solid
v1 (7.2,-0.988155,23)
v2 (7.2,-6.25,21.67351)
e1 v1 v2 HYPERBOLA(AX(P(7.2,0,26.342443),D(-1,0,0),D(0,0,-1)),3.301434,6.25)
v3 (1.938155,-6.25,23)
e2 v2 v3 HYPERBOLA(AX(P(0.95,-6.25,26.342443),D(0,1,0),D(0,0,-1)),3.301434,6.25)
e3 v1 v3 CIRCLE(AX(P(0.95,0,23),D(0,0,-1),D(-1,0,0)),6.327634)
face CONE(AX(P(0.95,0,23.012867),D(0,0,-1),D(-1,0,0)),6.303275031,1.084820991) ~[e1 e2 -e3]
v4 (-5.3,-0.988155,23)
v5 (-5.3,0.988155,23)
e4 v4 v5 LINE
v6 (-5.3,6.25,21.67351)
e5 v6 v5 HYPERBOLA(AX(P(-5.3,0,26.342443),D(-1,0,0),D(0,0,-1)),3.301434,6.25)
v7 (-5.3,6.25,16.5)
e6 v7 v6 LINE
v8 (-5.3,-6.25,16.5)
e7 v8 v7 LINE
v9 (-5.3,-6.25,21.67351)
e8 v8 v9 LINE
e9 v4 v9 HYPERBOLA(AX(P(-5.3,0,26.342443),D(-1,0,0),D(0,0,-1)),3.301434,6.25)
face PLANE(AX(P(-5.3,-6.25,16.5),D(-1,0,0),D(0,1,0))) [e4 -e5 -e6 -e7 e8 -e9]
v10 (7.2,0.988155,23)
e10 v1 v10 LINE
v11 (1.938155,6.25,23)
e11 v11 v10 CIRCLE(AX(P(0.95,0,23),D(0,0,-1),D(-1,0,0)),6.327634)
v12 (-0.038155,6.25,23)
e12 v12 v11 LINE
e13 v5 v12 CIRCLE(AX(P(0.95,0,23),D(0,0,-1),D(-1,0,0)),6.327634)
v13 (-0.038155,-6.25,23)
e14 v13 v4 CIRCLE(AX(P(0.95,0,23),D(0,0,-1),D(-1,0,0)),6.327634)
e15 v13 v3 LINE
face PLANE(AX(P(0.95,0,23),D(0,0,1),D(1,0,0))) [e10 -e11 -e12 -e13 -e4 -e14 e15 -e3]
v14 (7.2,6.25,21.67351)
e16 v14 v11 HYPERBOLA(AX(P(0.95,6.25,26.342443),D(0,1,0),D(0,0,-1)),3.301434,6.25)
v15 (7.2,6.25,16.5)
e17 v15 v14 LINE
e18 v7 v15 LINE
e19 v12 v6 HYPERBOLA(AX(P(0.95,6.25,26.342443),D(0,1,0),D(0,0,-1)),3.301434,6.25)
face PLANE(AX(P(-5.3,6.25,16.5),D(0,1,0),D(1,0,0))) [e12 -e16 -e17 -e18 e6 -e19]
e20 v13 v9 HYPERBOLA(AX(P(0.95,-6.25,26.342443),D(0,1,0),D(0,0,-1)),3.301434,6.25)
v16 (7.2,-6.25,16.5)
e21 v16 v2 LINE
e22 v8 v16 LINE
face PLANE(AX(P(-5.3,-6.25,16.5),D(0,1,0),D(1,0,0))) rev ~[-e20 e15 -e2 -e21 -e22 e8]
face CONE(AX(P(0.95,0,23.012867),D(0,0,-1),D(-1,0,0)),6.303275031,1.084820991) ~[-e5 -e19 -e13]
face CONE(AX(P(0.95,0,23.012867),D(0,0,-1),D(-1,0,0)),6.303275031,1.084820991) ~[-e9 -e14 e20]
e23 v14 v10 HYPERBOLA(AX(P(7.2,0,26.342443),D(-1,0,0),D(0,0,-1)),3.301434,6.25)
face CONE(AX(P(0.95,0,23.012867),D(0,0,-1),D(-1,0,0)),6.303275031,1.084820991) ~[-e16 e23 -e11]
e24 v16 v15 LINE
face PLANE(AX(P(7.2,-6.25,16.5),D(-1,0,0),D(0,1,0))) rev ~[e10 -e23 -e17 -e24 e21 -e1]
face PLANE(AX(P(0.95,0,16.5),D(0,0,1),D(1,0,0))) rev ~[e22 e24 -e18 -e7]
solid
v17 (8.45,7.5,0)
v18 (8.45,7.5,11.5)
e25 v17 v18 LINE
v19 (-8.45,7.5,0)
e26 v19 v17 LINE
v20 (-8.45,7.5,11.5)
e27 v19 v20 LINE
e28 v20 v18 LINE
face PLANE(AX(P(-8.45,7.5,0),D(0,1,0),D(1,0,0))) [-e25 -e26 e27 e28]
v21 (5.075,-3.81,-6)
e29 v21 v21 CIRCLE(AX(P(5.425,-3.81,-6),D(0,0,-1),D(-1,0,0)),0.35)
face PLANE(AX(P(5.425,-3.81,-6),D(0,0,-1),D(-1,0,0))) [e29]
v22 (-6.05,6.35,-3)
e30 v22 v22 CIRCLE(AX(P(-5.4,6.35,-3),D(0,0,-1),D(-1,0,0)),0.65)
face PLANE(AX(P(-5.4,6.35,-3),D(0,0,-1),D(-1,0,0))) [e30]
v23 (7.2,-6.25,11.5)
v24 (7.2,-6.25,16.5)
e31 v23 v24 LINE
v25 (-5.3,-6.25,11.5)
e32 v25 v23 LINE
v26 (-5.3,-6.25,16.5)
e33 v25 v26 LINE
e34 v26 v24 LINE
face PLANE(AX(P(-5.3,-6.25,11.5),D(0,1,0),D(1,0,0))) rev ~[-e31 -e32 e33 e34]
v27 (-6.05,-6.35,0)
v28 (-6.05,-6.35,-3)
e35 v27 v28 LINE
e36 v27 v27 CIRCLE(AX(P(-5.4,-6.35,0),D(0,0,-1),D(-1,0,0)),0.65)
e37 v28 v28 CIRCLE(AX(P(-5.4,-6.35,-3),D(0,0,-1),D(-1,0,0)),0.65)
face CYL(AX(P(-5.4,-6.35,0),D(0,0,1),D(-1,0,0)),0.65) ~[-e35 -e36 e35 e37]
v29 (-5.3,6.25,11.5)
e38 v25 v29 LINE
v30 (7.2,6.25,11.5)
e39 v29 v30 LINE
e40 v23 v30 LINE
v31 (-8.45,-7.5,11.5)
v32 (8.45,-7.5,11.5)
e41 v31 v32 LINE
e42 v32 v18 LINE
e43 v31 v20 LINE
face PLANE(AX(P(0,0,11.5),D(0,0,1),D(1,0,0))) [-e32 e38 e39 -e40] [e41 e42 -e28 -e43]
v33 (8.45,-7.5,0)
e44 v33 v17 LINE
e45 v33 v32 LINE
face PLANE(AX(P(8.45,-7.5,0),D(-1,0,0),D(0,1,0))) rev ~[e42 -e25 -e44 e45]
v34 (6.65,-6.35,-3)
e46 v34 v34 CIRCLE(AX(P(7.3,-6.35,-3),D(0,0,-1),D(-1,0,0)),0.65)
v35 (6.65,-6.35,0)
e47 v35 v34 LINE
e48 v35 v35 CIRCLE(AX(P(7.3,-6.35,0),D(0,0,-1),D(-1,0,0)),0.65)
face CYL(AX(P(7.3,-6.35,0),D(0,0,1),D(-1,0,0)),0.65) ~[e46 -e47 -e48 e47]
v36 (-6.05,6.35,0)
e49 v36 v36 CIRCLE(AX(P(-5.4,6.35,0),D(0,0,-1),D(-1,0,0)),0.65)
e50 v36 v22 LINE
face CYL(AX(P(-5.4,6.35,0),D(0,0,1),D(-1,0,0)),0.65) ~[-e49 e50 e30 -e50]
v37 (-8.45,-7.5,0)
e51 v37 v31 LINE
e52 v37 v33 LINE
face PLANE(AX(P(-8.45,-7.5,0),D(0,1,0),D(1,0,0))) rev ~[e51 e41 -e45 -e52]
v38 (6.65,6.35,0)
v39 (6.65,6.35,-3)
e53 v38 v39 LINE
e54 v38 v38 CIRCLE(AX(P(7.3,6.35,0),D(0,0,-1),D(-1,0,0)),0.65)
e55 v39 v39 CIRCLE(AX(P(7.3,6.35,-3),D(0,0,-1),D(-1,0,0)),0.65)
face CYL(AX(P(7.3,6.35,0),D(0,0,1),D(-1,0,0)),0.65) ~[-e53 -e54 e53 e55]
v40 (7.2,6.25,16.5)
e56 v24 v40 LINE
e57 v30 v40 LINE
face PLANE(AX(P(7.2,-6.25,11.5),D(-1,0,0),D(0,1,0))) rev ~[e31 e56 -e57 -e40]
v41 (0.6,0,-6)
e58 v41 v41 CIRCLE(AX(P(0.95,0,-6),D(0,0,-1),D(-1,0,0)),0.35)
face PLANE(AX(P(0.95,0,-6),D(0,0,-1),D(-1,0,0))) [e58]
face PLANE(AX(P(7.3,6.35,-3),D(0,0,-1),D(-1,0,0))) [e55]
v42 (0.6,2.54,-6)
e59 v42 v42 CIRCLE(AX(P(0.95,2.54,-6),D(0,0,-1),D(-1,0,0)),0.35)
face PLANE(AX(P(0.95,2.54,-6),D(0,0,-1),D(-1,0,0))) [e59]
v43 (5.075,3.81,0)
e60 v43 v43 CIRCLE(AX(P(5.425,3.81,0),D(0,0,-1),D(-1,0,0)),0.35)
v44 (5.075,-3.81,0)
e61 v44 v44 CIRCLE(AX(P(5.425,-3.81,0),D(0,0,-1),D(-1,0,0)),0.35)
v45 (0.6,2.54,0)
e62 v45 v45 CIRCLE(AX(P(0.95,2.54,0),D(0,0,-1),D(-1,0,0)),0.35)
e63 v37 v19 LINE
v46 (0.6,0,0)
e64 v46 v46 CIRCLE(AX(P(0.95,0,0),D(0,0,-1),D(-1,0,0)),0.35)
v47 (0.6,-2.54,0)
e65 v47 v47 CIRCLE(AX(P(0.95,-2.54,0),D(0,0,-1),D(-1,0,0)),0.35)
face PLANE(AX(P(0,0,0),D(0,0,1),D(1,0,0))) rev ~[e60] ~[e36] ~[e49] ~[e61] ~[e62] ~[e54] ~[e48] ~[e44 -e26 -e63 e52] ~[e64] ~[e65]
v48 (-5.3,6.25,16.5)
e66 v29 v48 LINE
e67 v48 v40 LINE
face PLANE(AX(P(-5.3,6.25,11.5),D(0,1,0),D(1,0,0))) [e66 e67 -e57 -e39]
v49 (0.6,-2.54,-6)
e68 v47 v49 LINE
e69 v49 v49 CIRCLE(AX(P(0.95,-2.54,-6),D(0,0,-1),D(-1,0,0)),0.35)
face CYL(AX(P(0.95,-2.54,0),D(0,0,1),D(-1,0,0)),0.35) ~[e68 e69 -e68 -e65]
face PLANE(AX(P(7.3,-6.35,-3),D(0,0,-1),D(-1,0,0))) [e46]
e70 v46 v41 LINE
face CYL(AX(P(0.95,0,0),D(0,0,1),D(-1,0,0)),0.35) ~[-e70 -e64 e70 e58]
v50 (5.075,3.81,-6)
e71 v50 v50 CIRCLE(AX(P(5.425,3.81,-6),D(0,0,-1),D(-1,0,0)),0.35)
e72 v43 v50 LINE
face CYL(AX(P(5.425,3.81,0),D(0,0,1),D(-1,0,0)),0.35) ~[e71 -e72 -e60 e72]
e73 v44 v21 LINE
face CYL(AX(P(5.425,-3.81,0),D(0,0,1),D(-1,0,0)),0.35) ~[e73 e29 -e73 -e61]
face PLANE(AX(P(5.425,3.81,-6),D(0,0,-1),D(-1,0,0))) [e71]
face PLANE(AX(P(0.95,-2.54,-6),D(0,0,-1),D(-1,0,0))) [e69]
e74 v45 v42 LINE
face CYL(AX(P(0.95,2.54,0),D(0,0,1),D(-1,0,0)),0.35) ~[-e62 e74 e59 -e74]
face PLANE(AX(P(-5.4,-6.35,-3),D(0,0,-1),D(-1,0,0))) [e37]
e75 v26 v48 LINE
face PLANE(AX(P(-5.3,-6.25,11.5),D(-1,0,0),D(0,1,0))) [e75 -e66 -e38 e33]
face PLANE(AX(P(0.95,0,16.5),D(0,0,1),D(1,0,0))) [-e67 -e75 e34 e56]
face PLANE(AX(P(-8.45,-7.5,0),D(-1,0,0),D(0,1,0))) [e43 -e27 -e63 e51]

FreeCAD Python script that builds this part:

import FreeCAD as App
import Part
import Sketcher
from FreeCAD import Vector

doc = App.newDocument("Part")
body = doc.addObject("PartDesign::Body", "Body")

# Sketch on XY plane
sketch1 = body.newObject("Sketcher::SketchObject", "Sketch")
sketch1.AttachmentSupport = (doc.getObject("XY_Plane"), [""])
sketch1.MapMode = "FlatFace"
sketch1.addGeometry(Part.LineSegment(Vector(-8, 8, 0), Vector(-8, -8, 0)), False)
sketch1.addGeometry(Part.LineSegment(Vector(-8, -8, 0), Vector(8, -8, 0)), False)
sketch1.addGeometry(Part.LineSegment(Vector(8, -8, 0), Vector(8, 8, 0)), False)
sketch1.addGeometry(Part.LineSegment(Vector(8, 8, 0), Vector(-8, 8, 0)), False)
sketch1.addConstraint(Sketcher.Constraint("Coincident", 0, 2, 1, 1))
sketch1.addConstraint(Sketcher.Constraint("Coincident", 1, 2, 2, 1))
sketch1.addConstraint(Sketcher.Constraint("Coincident", 2, 2, 3, 1))
sketch1.addConstraint(Sketcher.Constraint("Coincident", 3, 2, 0, 1))
sketch1.addConstraint(Sketcher.Constraint("Vertical", 0))
sketch1.addConstraint(Sketcher.Constraint("Horizontal", 1))
sketch1.addConstraint(Sketcher.Constraint("Vertical", 2))
sketch1.addConstraint(Sketcher.Constraint("Horizontal", 3))
sketch1.addConstraint(Sketcher.Constraint("Symmetric", 0, 2, 2, 2, -1, 1))
sketch1.addConstraint(Sketcher.Constraint("DistanceY", 0, 2, 0, 1, 15.0))
sketch1.addConstraint(Sketcher.Constraint("DistanceX", 1, 1, 1, 2, 16.9))
pad1 = body.newObject("PartDesign::Pad", "Pad")
pad1.Profile = sketch1
pad1.Length = 11.5

# Sketch on XY plane
sketch2 = body.newObject("Sketcher::SketchObject", "Sketch001")
sketch2.AttachmentSupport = (doc.getObject("XY_Plane"), [""])
sketch2.MapMode = "FlatFace"
sketch2.addGeometry(Part.Circle(Vector(-5.4, 6.3, 0), Vector(0, 0, 1), 0.7), False)
sketch2.addGeometry(Part.Circle(Vector(-5.4, -6.3, 0), Vector(0, 0, 1), 0.7), False)
sketch2.addGeometry(Part.Circle(Vector(7.3, -6.3, 0), Vector(0, 0, 1), 0.7), False)
sketch2.addGeometry(Part.Circle(Vector(7.3, 6.3, 0), Vector(0, 0, 1), 0.7), False)
sketch2.addConstraint(Sketcher.Constraint("Equal", 0, 1))
sketch2.addConstraint(Sketcher.Constraint("Equal", 1, 2))
sketch2.addConstraint(Sketcher.Constraint("Equal", 2, 3))
sketch2.addConstraint(Sketcher.Constraint("Symmetric", 0, 3, 1, 3, -1))
sketch2.addConstraint(Sketcher.Constraint("Symmetric", 2, 3, 3, 3, -1))
sketch2.addConstraint(Sketcher.Constraint("Horizontal", 1, 3, 2, 3))
sketch2.addConstraint(Sketcher.Constraint("Diameter", 0, 1.3))
sketch2.addConstraint(Sketcher.Constraint("DistanceX", 0, 3, -1, 1, 5.4))
sketch2.addConstraint(Sketcher.Constraint("DistanceX", -1, 1, 2, 3, 7.3))
sketch2.addConstraint(Sketcher.Constraint("DistanceY", 1, 3, 0, 3, 12.7))
pad2 = body.newObject("PartDesign::Pad", "Pad001")
pad2.Profile = sketch2
pad2.Length = 3
pad2.Reversed = True

# Sketch on XY plane
sketch3 = body.newObject("Sketcher::SketchObject", "Sketch002")
sketch3.AttachmentSupport = (doc.getObject("XY_Plane"), [""])
sketch3.MapMode = "FlatFace"
sketch3.addGeometry(Part.Circle(Vector(5.42, 3.81, 0), Vector(0, 0, 1), 0.35), False)
sketch3.addGeometry(Part.Circle(Vector(0.95, 2.54, 0), Vector(0, 0, 1), 0.35), False)
sketch3.addGeometry(Part.Circle(Vector(0.95, -2.54, 0), Vector(0, 0, 1), 0.35), False)
sketch3.addGeometry(Part.Circle(Vector(5.42, -3.81, 0), Vector(0, 0, 1), 0.35), False)
sketch3.addGeometry(Part.Circle(Vector(0.95, 0, 0), Vector(0, 0, 1), 0.35), False)
sketch3.addConstraint(Sketcher.Constraint("Equal", 0, 1))
sketch3.addConstraint(Sketcher.Constraint("Equal", 1, 2))
sketch3.addConstraint(Sketcher.Constraint("Equal", 2, 3))
sketch3.addConstraint(Sketcher.Constraint("Equal", 3, 4))
sketch3.addConstraint(Sketcher.Constraint("Symmetric", 1, 3, 2, 3, -1))
sketch3.addConstraint(Sketcher.Constraint("Symmetric", 0, 3, 3, 3, -1))
sketch3.addConstraint(Sketcher.Constraint("PointOnObject", 4, 3, -1))
sketch3.addConstraint(Sketcher.Constraint("Vertical", 2, 3, 4, 3))
sketch3.addConstraint(Sketcher.Constraint("Diameter", 0, 0.7))
sketch3.addConstraint(Sketcher.Constraint("DistanceY", -1, 1, 0, 3, 3.81))
sketch3.addConstraint(Sketcher.Constraint("DistanceX", -1, 1, 1, 3, 0.95))
sketch3.addConstraint(Sketcher.Constraint("DistanceY", -1, 1, 1, 3, 2.54))
sketch3.addConstraint(Sketcher.Constraint("DistanceX", -1, 1, 0, 3, 5.425))
pad3 = body.newObject("PartDesign::Pad", "Pad002")
pad3.Profile = sketch3
pad3.Length = 6
pad3.Reversed = True

# Sketch on XY plane
sketch4 = body.newObject("Sketcher::SketchObject", "Sketch003")
sketch4.AttachmentSupport = (doc.getObject("XY_Plane"), [""])
sketch4.MapMode = "FlatFace"
sketch4.AttachmentOffset = App.Placement(Vector(0, 0, 11.5), App.Rotation())
sketch4.addGeometry(Part.LineSegment(Vector(-5, 6, 0), Vector(-5, -6, 0)), False)
sketch4.addGeometry(Part.LineSegment(Vector(-5, -6, 0), Vector(7, -6, 0)), False)
sketch4.addGeometry(Part.LineSegment(Vector(7, -6, 0), Vector(7, 6, 0)), False)
sketch4.addGeometry(Part.LineSegment(Vector(7, 6, 0), Vector(-5, 6, 0)), False)
sketch4.addConstraint(Sketcher.Constraint("Coincident", 0, 2, 1, 1))
sketch4.addConstraint(Sketcher.Constraint("Coincident", 1, 2, 2, 1))
sketch4.addConstraint(Sketcher.Constraint("Coincident", 2, 2, 3, 1))
sketch4.addConstraint(Sketcher.Constraint("Coincident", 3, 2, 0, 1))
sketch4.addConstraint(Sketcher.Constraint("Vertical", 0))
sketch4.addConstraint(Sketcher.Constraint("Horizontal", 1))
sketch4.addConstraint(Sketcher.Constraint("Vertical", 2))
sketch4.addConstraint(Sketcher.Constraint("Horizontal", 3))
sketch4.addConstraint(Sketcher.Constraint("Equal", 3, 0))
sketch4.addConstraint(Sketcher.Constraint("DistanceX", 1, 1, 1, 2, 12.5))
sketch4.addConstraint(Sketcher.Constraint("DistanceX", 0, 2, -1, 1, 5.3))
sketch4.addConstraint(Sketcher.Constraint("DistanceY", 0, 2, -1, 1, 6.25))
pad4 = body.newObject("PartDesign::Pad", "Pad003")
pad4.Profile = sketch4
pad4.Length = 5
body2 = doc.addObject("PartDesign::Body", "Body001")

# Sketch on XY plane
sketch5 = body2.newObject("Sketcher::SketchObject", "Sketch004")
sketch5.AttachmentSupport = (doc.getObject("XY_Plane001"), [""])
sketch5.MapMode = "FlatFace"
sketch5.AttachmentOffset = App.Placement(Vector(0, 0, 16.5), App.Rotation())
sketch5.addGeometry(Part.LineSegment(Vector(-5, 6, 0), Vector(-5, -6, 0)), False)
sketch5.addGeometry(Part.LineSegment(Vector(-5, -6, 0), Vector(7, -6, 0)), False)
sketch5.addGeometry(Part.LineSegment(Vector(7, -6, 0), Vector(7, 6, 0)), False)
sketch5.addGeometry(Part.LineSegment(Vector(7, 6, 0), Vector(-5, 6, 0)), False)
sketch5.addConstraint(Sketcher.Constraint("Coincident", 0, 2, 1, 1))
sketch5.addConstraint(Sketcher.Constraint("Coincident", 1, 2, 2, 1))
sketch5.addConstraint(Sketcher.Constraint("Coincident", 2, 2, 3, 1))
sketch5.addConstraint(Sketcher.Constraint("Coincident", 3, 2, 0, 1))
sketch5.addConstraint(Sketcher.Constraint("Vertical", 0))
sketch5.addConstraint(Sketcher.Constraint("Horizontal", 1))
sketch5.addConstraint(Sketcher.Constraint("Vertical", 2))
sketch5.addConstraint(Sketcher.Constraint("Horizontal", 3))
sketch5.addConstraint(Sketcher.Constraint("Equal", 3, 0))
sketch5.addConstraint(Sketcher.Constraint("DistanceX", 1, 1, 1, 2, 12.5))
sketch5.addConstraint(Sketcher.Constraint("DistanceX", 0, 2, -1, 1, 5.3))
sketch5.addConstraint(Sketcher.Constraint("DistanceY", 0, 2, -1, 1, 6.25))
pad5 = body2.newObject("PartDesign::Pad", "Pad004")
pad5.Profile = sketch5
pad5.Length = 6.5

# Sketch on XZ plane
sketch6 = body2.newObject("Sketcher::SketchObject", "Sketch005")
sketch6.AttachmentSupport = (doc.getObject("XZ_Plane001"), [""])
sketch6.MapMode = "FlatFace"
sketch6.addGeometry(Part.LineSegment(Vector(-5.4, 23, 0), Vector(-10, 20.5, 0)), False)
sketch6.addGeometry(Part.LineSegment(Vector(-10, 20.5, 0), Vector(-10.6, 23.8, 0)), False)
sketch6.addGeometry(Part.LineSegment(Vector(-10.6, 23.8, 0), Vector(-5.4, 23, 0)), False)
sketch6.addGeometry(Part.LineSegment(Vector(0.9, 20.5, 0), Vector(0.9, 23.8, 0)), True)  # axis
sketch6.addConstraint(Sketcher.Constraint("Coincident", 0, 2, 1, 1))
sketch6.addConstraint(Sketcher.Constraint("Coincident", 1, 2, 2, 1))
sketch6.addConstraint(Sketcher.Constraint("Coincident", 2, 2, 0, 1))
sketch6.addConstraint(Sketcher.Constraint("Vertical", 3))
sketch6.addConstraint(Sketcher.Constraint("Horizontal", 0, 2, 3, 1))
sketch6.addConstraint(Sketcher.Constraint("Horizontal", 1, 2, 3, 2))
sketch6.addConstraint(Sketcher.Constraint("DistanceX", -1, 1, 3, 1, 0.95))
sketch6.addConstraint(Sketcher.Constraint("DistanceY", 3, 1, 3, 2, 3.208368))
sketch6.addConstraint(Sketcher.Constraint("DistanceY", 0, 2, 2, 2, 2.46453))
sketch6.addConstraint(Sketcher.Constraint("Distance", 0, 5.276564))
sketch6.addConstraint(Sketcher.Constraint("Distance", 1, 3.263996))
sketch6.addConstraint(Sketcher.Constraint("DistanceX", 0, 2, -1, 1, 10.018917))
sketch6.addConstraint(Sketcher.Constraint("DistanceY", -1, 1, 0, 2, 20.548337))
groove = body2.newObject("PartDesign::Groove", "Groove")
groove.Profile = sketch6
groove.ReferenceAxis = (sketch6, ["Axis0"])
groove.Angle = 360

doc.recompute()
